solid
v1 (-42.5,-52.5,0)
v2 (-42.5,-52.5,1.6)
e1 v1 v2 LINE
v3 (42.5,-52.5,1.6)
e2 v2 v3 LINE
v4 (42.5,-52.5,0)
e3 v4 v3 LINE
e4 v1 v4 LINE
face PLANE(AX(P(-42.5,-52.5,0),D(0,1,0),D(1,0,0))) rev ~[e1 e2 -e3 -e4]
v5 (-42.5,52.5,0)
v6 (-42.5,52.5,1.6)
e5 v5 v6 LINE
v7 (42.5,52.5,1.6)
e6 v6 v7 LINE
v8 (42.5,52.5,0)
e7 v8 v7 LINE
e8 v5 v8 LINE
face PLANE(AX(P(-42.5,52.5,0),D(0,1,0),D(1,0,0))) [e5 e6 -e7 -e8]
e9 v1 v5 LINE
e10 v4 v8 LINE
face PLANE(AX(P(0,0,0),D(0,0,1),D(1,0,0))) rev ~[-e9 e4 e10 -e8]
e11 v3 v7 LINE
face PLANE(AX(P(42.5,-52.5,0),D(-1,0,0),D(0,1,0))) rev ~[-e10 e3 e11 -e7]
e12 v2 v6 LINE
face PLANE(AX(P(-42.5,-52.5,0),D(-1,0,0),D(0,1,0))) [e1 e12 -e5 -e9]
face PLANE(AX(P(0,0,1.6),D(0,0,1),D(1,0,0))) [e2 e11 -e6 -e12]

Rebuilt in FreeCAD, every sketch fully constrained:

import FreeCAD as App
import Part
import Sketcher

V = App.Vector
Q = App.Units.Quantity


def add_polygon(sketch, points):
    """Adds a closed chain of lines whose ends are joined by coincident constraints."""
    first, n = sketch.GeometryCount, len(points)
    for a, b in zip(points, points[1:] + points[:1]):
        sketch.addGeometry(Part.LineSegment(App.Vector(*a, 0), App.Vector(*b, 0)), False)
    for i in range(n):
        sketch.addConstraint(Sketcher.Constraint("Coincident", first + i, 2, first + (i + 1) % n, 1))

doc = App.newDocument("Part")
params = doc.addObject("Spreadsheet::Sheet", "Params")
for row, (alias, value) in enumerate([
    ("sketch1_width", "85 mm"),
    ("sketch1_height", "105 mm"),
    ("pad1_length", "1.6 mm"),
], start=1):
    params.set(f"A{row}", alias)
    params.set(f"B{row}", "=" + value)
    params.setAlias(f"B{row}", alias)

body = doc.addObject("PartDesign::Body", "Body")

sketch1 = doc.addObject("Sketcher::SketchObject", "Sketch")
body.addObject(sketch1)
sketch1.AttachmentSupport = (doc.XY_Plane, [""])
sketch1.MapMode = "FlatFace"
add_polygon(sketch1, [(-42, 52), (-42, -52), (42, -52), (42, 52)])
sketch1.addConstraint(Sketcher.Constraint("Vertical", 0))
sketch1.addConstraint(Sketcher.Constraint("Horizontal", 1))
sketch1.addConstraint(Sketcher.Constraint("Vertical", 2))
sketch1.addConstraint(Sketcher.Constraint("Horizontal", 3))
sketch1.addConstraint(Sketcher.Constraint("Symmetric", 0, 2, 2, 2, -1, 1))
sketch1.addConstraint(Sketcher.Constraint("DistanceX", 1, 1, 1, 2, Q("85 mm")))
sketch1.addConstraint(Sketcher.Constraint("DistanceY", 0, 2, 0, 1, Q("105 mm")))
sketch1.setExpression("Constraints[9]", "Params.sketch1_width")
sketch1.setExpression("Constraints[10]", "Params.sketch1_height")
pad1 = doc.addObject("PartDesign::Pad", "Pad")
body.addObject(pad1)
pad1.Profile = sketch1
pad1.setExpression("Length", "Params.pad1_length")

doc.recompute()
